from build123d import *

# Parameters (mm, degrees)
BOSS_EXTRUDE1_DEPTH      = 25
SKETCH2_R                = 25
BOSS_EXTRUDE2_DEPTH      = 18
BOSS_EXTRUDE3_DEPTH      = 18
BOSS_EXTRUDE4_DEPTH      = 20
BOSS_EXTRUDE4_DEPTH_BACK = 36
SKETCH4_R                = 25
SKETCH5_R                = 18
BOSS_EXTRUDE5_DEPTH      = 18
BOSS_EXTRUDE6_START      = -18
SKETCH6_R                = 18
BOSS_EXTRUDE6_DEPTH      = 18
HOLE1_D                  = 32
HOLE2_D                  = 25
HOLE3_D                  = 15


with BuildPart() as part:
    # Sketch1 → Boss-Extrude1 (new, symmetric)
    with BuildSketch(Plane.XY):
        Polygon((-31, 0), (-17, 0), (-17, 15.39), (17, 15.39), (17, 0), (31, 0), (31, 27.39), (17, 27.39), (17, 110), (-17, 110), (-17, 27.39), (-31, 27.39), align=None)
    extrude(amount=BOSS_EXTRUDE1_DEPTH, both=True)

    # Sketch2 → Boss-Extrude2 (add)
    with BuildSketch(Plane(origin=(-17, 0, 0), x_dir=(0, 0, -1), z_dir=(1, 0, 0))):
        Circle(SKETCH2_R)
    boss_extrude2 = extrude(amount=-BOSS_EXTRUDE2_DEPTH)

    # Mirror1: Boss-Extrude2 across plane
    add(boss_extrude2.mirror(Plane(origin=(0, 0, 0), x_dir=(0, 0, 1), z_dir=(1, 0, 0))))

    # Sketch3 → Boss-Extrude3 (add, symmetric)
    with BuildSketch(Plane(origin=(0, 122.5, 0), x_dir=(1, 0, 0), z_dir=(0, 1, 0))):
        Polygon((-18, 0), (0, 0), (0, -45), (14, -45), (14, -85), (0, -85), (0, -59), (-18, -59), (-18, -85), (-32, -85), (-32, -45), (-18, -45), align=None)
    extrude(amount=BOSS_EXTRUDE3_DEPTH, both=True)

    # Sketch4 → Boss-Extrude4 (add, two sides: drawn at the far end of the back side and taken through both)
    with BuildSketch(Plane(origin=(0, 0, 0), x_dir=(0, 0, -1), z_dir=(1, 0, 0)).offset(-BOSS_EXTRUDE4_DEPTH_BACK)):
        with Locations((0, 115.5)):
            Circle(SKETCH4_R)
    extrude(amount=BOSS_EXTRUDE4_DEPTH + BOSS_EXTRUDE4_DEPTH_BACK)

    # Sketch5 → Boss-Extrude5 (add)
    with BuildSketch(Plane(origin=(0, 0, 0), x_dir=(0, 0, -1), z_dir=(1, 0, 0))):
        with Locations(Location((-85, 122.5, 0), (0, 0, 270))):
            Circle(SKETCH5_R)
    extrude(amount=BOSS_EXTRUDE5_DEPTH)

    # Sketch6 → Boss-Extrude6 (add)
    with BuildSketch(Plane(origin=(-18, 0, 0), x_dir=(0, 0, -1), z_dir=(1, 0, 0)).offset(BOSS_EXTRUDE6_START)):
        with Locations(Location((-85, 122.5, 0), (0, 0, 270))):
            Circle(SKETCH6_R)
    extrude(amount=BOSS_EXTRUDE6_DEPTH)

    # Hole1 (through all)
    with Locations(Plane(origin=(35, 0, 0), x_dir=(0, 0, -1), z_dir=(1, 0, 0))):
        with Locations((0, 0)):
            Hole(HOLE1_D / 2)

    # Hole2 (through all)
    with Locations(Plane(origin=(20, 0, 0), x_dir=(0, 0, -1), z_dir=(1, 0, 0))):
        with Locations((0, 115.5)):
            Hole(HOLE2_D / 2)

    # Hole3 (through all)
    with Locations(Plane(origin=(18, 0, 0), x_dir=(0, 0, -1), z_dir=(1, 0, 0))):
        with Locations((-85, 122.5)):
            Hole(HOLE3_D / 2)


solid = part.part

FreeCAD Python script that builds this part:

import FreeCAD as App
import Part
import Sketcher

doc = App.newDocument("Part")
body = doc.addObject("PartDesign::Body", "Body")

# Sketch on XY plane
sketch1 = doc.addObject("Sketcher::SketchObject", "Sketch")
body.addObject(sketch1)
sketch1.AttachmentSupport = (doc.XY_Plane, [""])
sketch1.MapMode = "FlatFace"
sketch1.addGeometry([
    Part.LineSegment(App.Vector(-31, 0, 0), App.Vector(-17, 0, 0)),  # 0
    Part.LineSegment(App.Vector(-17, 0, 0), App.Vector(-17, 15, 0)),  # 1
    Part.LineSegment(App.Vector(-17, 15, 0), App.Vector(17, 15, 0)),  # 2
    Part.LineSegment(App.Vector(17, 15, 0), App.Vector(17, 0, 0)),  # 3
    Part.LineSegment(App.Vector(17, 0, 0), App.Vector(31, 0, 0)),  # 4
    Part.LineSegment(App.Vector(31, 0, 0), App.Vector(31, 27, 0)),  # 5
    Part.LineSegment(App.Vector(31, 27, 0), App.Vector(17, 27, 0)),  # 6
    Part.LineSegment(App.Vector(17, 27, 0), App.Vector(17, 110, 0)),  # 7
    Part.LineSegment(App.Vector(17, 110, 0), App.Vector(-17, 110, 0)),  # 8
    Part.LineSegment(App.Vector(-17, 110, 0), App.Vector(-17, 27, 0)),  # 9
    Part.LineSegment(App.Vector(-17, 27, 0), App.Vector(-31, 27, 0)),  # 10
    Part.LineSegment(App.Vector(-31, 27, 0), App.Vector(-31, 0, 0)),  # 11
], False)
sketch1.addConstraint([
    Sketcher.Constraint("Coincident", 0, 2, 1, 1),
    Sketcher.Constraint("Coincident", 1, 2, 2, 1),
    Sketcher.Constraint("Coincident", 2, 2, 3, 1),
    Sketcher.Constraint("Coincident", 3, 2, 4, 1),
    Sketcher.Constraint("Coincident", 4, 2, 5, 1),
    Sketcher.Constraint("Coincident", 5, 2, 6, 1),
    Sketcher.Constraint("Coincident", 6, 2, 7, 1),
    Sketcher.Constraint("Coincident", 7, 2, 8, 1),
    Sketcher.Constraint("Coincident", 8, 2, 9, 1),
    Sketcher.Constraint("Coincident", 9, 2, 10, 1),
    Sketcher.Constraint("Coincident", 10, 2, 11, 1),
    Sketcher.Constraint("Coincident", 11, 2, 0, 1),
    Sketcher.Constraint("Horizontal", 0),
    Sketcher.Constraint("Vertical", 1),
    Sketcher.Constraint("Horizontal", 2),
    Sketcher.Constraint("Vertical", 3),
    Sketcher.Constraint("Horizontal", 4),
    Sketcher.Constraint("Vertical", 5),
    Sketcher.Constraint("Horizontal", 6),
    Sketcher.Constraint("Vertical", 7),
    Sketcher.Constraint("Horizontal", 8),
    Sketcher.Constraint("Vertical", 9),
    Sketcher.Constraint("Horizontal", 10),
    Sketcher.Constraint("Vertical", 11),
    Sketcher.Constraint("Symmetric", 0, 2, 3, 2, -1, 1),
    Sketcher.Constraint("Symmetric", 6, 2, 9, 2, -2),
    Sketcher.Constraint("Symmetric", 4, 2, 11, 2, -2),
    Sketcher.Constraint("Vertical", 3, 2, 6, 2),
    Sketcher.Constraint("DistanceX", 0, 1, 0, 2, 14.0),
    Sketcher.Constraint("DistanceX", 2, 1, 2, 2, 34.0),
    Sketcher.Constraint("DistanceY", -1, 1, 7, 2, 110.0),
    Sketcher.Constraint("DistanceY", 2, 2, 5, 2, 12.0),
    Sketcher.Constraint("DistanceY", 1, 1, 1, 2, 15.39),
])
pad1 = doc.addObject("PartDesign::Pad", "Pad")
body.addObject(pad1)
pad1.Profile = sketch1
pad1.Length = 50
pad1.Midplane = True

# Sketch on YZ plane
sketch2 = doc.addObject("Sketcher::SketchObject", "Sketch001")
body.addObject(sketch2)
sketch2.AttachmentSupport = (doc.YZ_Plane, [""])
sketch2.MapMode = "FlatFace"
sketch2.AttachmentOffset = App.Placement(App.Vector(0, 0, -17), App.Rotation())
sketch2.addGeometry(Part.Circle(App.Vector(0, 0, 0), App.Vector(0, 0, 1), 25), False)
sketch2.addConstraint([
    Sketcher.Constraint("Coincident", 0, 3, -1, 1),
    Sketcher.Constraint("Diameter", 0, 50.0),
])
pad2 = doc.addObject("PartDesign::Pad", "Pad001")
body.addObject(pad2)
pad2.Profile = sketch2
pad2.Length = 18
pad2.Reversed = True
doc.recompute()

mirrored = doc.addObject("PartDesign::Mirrored", "Mirrored")
body.addObject(mirrored)
mirrored.Originals = [pad2]
mirrored.MirrorPlane = (doc.YZ_Plane, [""])
body.Tip = mirrored

# Sketch on XZ plane
sketch3 = doc.addObject("Sketcher::SketchObject", "Sketch002")
body.addObject(sketch3)
sketch3.AttachmentSupport = (doc.XZ_Plane, [""])
sketch3.MapMode = "FlatFace"
sketch3.AttachmentOffset = App.Placement(App.Vector(0, 0, -122.5), App.Rotation())
sketch3.addGeometry([
    Part.LineSegment(App.Vector(0, 0, 0), App.Vector(-18, 0, 0)),  # 0
    Part.LineSegment(App.Vector(-18, 0, 0), App.Vector(-18, 45, 0)),  # 1
    Part.LineSegment(App.Vector(-18, 45, 0), App.Vector(-32, 45, 0)),  # 2
    Part.LineSegment(App.Vector(-32, 45, 0), App.Vector(-32, 85, 0)),  # 3
    Part.LineSegment(App.Vector(-32, 85, 0), App.Vector(-18, 85, 0)),  # 4
    Part.LineSegment(App.Vector(-18, 85, 0), App.Vector(-18, 59, 0)),  # 5
    Part.LineSegment(App.Vector(-18, 59, 0), App.Vector(0, 59, 0)),  # 6
    Part.LineSegment(App.Vector(0, 59, 0), App.Vector(0, 85, 0)),  # 7
    Part.LineSegment(App.Vector(0, 85, 0), App.Vector(14, 85, 0)),  # 8
    Part.LineSegment(App.Vector(14, 85, 0), App.Vector(14, 45, 0)),  # 9
    Part.LineSegment(App.Vector(14, 45, 0), App.Vector(0, 45, 0)),  # 10
    Part.LineSegment(App.Vector(0, 45, 0), App.Vector(0, 0, 0)),  # 11
], False)
sketch3.addConstraint([
    Sketcher.Constraint("Coincident", 0, 2, 1, 1),
    Sketcher.Constraint("Coincident", 1, 2, 2, 1),
    Sketcher.Constraint("Coincident", 2, 2, 3, 1),
    Sketcher.Constraint("Coincident", 3, 2, 4, 1),
    Sketcher.Constraint("Coincident", 4, 2, 5, 1),
    Sketcher.Constraint("Coincident", 5, 2, 6, 1),
    Sketcher.Constraint("Coincident", 6, 2, 7, 1),
    Sketcher.Constraint("Coincident", 7, 2, 8, 1),
    Sketcher.Constraint("Coincident", 8, 2, 9, 1),
    Sketcher.Constraint("Coincident", 9, 2, 10, 1),
    Sketcher.Constraint("Coincident", 10, 2, 11, 1),
    Sketcher.Constraint("Coincident", 11, 2, 0, 1),
    Sketcher.Constraint("Horizontal", 0),
    Sketcher.Constraint("Vertical", 1),
    Sketcher.Constraint("Horizontal", 2),
    Sketcher.Constraint("Vertical", 3),
    Sketcher.Constraint("Horizontal", 4),
    Sketcher.Constraint("Vertical", 5),
    Sketcher.Constraint("Horizontal", 6),
    Sketcher.Constraint("Vertical", 7),
    Sketcher.Constraint("Horizontal", 8),
    Sketcher.Constraint("Vertical", 9),
    Sketcher.Constraint("Horizontal", 10),
    Sketcher.Constraint("Vertical", 11),
    Sketcher.Constraint("Coincident", 11, 2, -1, 1),
    Sketcher.Constraint("PointOnObject", 6, 2, -2),
    Sketcher.Constraint("Horizontal", 4, 2, 7, 2),
    Sketcher.Constraint("Horizontal", 2, 2, 9, 2),
    Sketcher.Constraint("Vertical", 1, 2, 4, 2),
    Sketcher.Constraint("Equal", 4, 8),
    Sketcher.Constraint("DistanceX", 0, 2, 0, 1, 18.0),
    Sketcher.Constraint("DistanceX", 2, 2, 2, 1, 14.0),
    Sketcher.Constraint("DistanceY", 1, 1, 1, 2, 45.0),
    Sketcher.Constraint("DistanceY", 3, 1, 3, 2, 40.0),
    Sketcher.Constraint("DistanceY", 5, 2, 5, 1, 26.0),
])
pad3 = doc.addObject("PartDesign::Pad", "Pad002")
body.addObject(pad3)
pad3.Profile = sketch3
pad3.Length = 36
pad3.Midplane = True

# Sketch on YZ plane
sketch4 = doc.addObject("Sketcher::SketchObject", "Sketch003")
body.addObject(sketch4)
sketch4.AttachmentSupport = (doc.YZ_Plane, [""])
sketch4.MapMode = "FlatFace"
sketch4.addGeometry(Part.Circle(App.Vector(116, 0, 0), App.Vector(0, 0, 1), 25), False)
sketch4.addConstraint([
    Sketcher.Constraint("PointOnObject", 0, 3, -1),
    Sketcher.Constraint("Diameter", 0, 50.0),
    Sketcher.Constraint("DistanceX", -1, 1, 0, 3, 115.5),
])
pad4 = doc.addObject("PartDesign::Pad", "Pad003")
body.addObject(pad4)
pad4.Profile = sketch4
pad4.Type = "TwoLengths"
pad4.Length = 20
pad4.Length2 = 36

# Sketch on YZ plane
sketch5 = doc.addObject("Sketcher::SketchObject", "Sketch004")
body.addObject(sketch5)
sketch5.AttachmentSupport = (doc.YZ_Plane, [""])
sketch5.MapMode = "FlatFace"
sketch5.addGeometry(Part.Circle(App.Vector(122, 85, 0), App.Vector(0, 0, 1), 18), False)
sketch5.addConstraint([
    Sketcher.Constraint("Diameter", 0, 36.0),
    Sketcher.Constraint("DistanceY", -1, 1, 0, 3, 85.0),
    Sketcher.Constraint("DistanceX", -1, 1, 0, 3, 122.5),
])
pad5 = doc.addObject("PartDesign::Pad", "Pad004")
body.addObject(pad5)
pad5.Profile = sketch5
pad5.Length = 18

# Sketch on YZ plane
sketch6 = doc.addObject("Sketcher::SketchObject", "Sketch005")
body.addObject(sketch6)
sketch6.AttachmentSupport = (doc.YZ_Plane, [""])
sketch6.MapMode = "FlatFace"
sketch6.AttachmentOffset = App.Placement(App.Vector(0, 0, -36), App.Rotation())
sketch6.addGeometry(Part.Circle(App.Vector(122, 85, 0), App.Vector(0, 0, 1), 18), False)
sketch6.addConstraint([
    Sketcher.Constraint("Diameter", 0, 36.0),
    Sketcher.Constraint("DistanceY", -1, 1, 0, 3, 85.0),
    Sketcher.Constraint("DistanceX", -1, 1, 0, 3, 122.5),
])
pad6 = doc.addObject("PartDesign::Pad", "Pad005")
body.addObject(pad6)
pad6.Profile = sketch6
pad6.Length = 18

# Sketch on YZ plane
sketch7 = doc.addObject("Sketcher::SketchObject", "Sketch006")
body.addObject(sketch7)
sketch7.AttachmentSupport = (doc.YZ_Plane, [""])
sketch7.MapMode = "FlatFace"
sketch7.AttachmentOffset = App.Placement(App.Vector(0, 0, 35), App.Rotation())
sketch7.addGeometry(Part.Circle(App.Vector(0, 0, 0), App.Vector(0, 0, 1), 16), False)
sketch7.addConstraint([
    Sketcher.Constraint("Coincident", 0, 3, -1, 1),
    Sketcher.Constraint("Diameter", 0, 32.0),
])
doc.recompute()
hole = doc.addObject("PartDesign::Hole", "Hole")
body.addObject(hole)
hole.Profile = sketch7
hole.ThreadType = "None"
hole.Diameter = 32
hole.DepthType = "ThroughAll"

# Sketch on YZ plane
sketch8 = doc.addObject("Sketcher::SketchObject", "Sketch007")
body.addObject(sketch8)
sketch8.AttachmentSupport = (doc.YZ_Plane, [""])
sketch8.MapMode = "FlatFace"
sketch8.AttachmentOffset = App.Placement(App.Vector(0, 0, 20), App.Rotation())
sketch8.addGeometry(Part.Circle(App.Vector(116, 0, 0), App.Vector(0, 0, 1), 12), False)
sketch8.addConstraint([
    Sketcher.Constraint("PointOnObject", 0, 3, -1),
    Sketcher.Constraint("Diameter", 0, 25.0),
    Sketcher.Constraint("DistanceX", -1, 1, 0, 3, 115.5),
])
doc.recompute()
hole2 = doc.addObject("PartDesign::Hole", "Hole001")
body.addObject(hole2)
hole2.Profile = sketch8
hole2.ThreadType = "None"
hole2.Diameter = 25
hole2.DepthType = "ThroughAll"

# Sketch on YZ plane
sketch9 = doc.addObject("Sketcher::SketchObject", "Sketch008")
body.addObject(sketch9)
sketch9.AttachmentSupport = (doc.YZ_Plane, [""])
sketch9.MapMode = "FlatFace"
sketch9.AttachmentOffset = App.Placement(App.Vector(0, 0, 18), App.Rotation())
sketch9.addGeometry(Part.Circle(App.Vector(122, 85, 0), App.Vector(0, 0, 1), 8), False)
sketch9.addConstraint([
    Sketcher.Constraint("Diameter", 0, 15.0),
    Sketcher.Constraint("DistanceY", -1, 1, 0, 3, 85.0),
    Sketcher.Constraint("DistanceX", -1, 1, 0, 3, 122.5),
])
doc.recompute()
hole3 = doc.addObject("PartDesign::Hole", "Hole002")
body.addObject(hole3)
hole3.Profile = sketch9
hole3.ThreadType = "None"
hole3.Diameter = 15
hole3.DepthType = "ThroughAll"

doc.recompute()
